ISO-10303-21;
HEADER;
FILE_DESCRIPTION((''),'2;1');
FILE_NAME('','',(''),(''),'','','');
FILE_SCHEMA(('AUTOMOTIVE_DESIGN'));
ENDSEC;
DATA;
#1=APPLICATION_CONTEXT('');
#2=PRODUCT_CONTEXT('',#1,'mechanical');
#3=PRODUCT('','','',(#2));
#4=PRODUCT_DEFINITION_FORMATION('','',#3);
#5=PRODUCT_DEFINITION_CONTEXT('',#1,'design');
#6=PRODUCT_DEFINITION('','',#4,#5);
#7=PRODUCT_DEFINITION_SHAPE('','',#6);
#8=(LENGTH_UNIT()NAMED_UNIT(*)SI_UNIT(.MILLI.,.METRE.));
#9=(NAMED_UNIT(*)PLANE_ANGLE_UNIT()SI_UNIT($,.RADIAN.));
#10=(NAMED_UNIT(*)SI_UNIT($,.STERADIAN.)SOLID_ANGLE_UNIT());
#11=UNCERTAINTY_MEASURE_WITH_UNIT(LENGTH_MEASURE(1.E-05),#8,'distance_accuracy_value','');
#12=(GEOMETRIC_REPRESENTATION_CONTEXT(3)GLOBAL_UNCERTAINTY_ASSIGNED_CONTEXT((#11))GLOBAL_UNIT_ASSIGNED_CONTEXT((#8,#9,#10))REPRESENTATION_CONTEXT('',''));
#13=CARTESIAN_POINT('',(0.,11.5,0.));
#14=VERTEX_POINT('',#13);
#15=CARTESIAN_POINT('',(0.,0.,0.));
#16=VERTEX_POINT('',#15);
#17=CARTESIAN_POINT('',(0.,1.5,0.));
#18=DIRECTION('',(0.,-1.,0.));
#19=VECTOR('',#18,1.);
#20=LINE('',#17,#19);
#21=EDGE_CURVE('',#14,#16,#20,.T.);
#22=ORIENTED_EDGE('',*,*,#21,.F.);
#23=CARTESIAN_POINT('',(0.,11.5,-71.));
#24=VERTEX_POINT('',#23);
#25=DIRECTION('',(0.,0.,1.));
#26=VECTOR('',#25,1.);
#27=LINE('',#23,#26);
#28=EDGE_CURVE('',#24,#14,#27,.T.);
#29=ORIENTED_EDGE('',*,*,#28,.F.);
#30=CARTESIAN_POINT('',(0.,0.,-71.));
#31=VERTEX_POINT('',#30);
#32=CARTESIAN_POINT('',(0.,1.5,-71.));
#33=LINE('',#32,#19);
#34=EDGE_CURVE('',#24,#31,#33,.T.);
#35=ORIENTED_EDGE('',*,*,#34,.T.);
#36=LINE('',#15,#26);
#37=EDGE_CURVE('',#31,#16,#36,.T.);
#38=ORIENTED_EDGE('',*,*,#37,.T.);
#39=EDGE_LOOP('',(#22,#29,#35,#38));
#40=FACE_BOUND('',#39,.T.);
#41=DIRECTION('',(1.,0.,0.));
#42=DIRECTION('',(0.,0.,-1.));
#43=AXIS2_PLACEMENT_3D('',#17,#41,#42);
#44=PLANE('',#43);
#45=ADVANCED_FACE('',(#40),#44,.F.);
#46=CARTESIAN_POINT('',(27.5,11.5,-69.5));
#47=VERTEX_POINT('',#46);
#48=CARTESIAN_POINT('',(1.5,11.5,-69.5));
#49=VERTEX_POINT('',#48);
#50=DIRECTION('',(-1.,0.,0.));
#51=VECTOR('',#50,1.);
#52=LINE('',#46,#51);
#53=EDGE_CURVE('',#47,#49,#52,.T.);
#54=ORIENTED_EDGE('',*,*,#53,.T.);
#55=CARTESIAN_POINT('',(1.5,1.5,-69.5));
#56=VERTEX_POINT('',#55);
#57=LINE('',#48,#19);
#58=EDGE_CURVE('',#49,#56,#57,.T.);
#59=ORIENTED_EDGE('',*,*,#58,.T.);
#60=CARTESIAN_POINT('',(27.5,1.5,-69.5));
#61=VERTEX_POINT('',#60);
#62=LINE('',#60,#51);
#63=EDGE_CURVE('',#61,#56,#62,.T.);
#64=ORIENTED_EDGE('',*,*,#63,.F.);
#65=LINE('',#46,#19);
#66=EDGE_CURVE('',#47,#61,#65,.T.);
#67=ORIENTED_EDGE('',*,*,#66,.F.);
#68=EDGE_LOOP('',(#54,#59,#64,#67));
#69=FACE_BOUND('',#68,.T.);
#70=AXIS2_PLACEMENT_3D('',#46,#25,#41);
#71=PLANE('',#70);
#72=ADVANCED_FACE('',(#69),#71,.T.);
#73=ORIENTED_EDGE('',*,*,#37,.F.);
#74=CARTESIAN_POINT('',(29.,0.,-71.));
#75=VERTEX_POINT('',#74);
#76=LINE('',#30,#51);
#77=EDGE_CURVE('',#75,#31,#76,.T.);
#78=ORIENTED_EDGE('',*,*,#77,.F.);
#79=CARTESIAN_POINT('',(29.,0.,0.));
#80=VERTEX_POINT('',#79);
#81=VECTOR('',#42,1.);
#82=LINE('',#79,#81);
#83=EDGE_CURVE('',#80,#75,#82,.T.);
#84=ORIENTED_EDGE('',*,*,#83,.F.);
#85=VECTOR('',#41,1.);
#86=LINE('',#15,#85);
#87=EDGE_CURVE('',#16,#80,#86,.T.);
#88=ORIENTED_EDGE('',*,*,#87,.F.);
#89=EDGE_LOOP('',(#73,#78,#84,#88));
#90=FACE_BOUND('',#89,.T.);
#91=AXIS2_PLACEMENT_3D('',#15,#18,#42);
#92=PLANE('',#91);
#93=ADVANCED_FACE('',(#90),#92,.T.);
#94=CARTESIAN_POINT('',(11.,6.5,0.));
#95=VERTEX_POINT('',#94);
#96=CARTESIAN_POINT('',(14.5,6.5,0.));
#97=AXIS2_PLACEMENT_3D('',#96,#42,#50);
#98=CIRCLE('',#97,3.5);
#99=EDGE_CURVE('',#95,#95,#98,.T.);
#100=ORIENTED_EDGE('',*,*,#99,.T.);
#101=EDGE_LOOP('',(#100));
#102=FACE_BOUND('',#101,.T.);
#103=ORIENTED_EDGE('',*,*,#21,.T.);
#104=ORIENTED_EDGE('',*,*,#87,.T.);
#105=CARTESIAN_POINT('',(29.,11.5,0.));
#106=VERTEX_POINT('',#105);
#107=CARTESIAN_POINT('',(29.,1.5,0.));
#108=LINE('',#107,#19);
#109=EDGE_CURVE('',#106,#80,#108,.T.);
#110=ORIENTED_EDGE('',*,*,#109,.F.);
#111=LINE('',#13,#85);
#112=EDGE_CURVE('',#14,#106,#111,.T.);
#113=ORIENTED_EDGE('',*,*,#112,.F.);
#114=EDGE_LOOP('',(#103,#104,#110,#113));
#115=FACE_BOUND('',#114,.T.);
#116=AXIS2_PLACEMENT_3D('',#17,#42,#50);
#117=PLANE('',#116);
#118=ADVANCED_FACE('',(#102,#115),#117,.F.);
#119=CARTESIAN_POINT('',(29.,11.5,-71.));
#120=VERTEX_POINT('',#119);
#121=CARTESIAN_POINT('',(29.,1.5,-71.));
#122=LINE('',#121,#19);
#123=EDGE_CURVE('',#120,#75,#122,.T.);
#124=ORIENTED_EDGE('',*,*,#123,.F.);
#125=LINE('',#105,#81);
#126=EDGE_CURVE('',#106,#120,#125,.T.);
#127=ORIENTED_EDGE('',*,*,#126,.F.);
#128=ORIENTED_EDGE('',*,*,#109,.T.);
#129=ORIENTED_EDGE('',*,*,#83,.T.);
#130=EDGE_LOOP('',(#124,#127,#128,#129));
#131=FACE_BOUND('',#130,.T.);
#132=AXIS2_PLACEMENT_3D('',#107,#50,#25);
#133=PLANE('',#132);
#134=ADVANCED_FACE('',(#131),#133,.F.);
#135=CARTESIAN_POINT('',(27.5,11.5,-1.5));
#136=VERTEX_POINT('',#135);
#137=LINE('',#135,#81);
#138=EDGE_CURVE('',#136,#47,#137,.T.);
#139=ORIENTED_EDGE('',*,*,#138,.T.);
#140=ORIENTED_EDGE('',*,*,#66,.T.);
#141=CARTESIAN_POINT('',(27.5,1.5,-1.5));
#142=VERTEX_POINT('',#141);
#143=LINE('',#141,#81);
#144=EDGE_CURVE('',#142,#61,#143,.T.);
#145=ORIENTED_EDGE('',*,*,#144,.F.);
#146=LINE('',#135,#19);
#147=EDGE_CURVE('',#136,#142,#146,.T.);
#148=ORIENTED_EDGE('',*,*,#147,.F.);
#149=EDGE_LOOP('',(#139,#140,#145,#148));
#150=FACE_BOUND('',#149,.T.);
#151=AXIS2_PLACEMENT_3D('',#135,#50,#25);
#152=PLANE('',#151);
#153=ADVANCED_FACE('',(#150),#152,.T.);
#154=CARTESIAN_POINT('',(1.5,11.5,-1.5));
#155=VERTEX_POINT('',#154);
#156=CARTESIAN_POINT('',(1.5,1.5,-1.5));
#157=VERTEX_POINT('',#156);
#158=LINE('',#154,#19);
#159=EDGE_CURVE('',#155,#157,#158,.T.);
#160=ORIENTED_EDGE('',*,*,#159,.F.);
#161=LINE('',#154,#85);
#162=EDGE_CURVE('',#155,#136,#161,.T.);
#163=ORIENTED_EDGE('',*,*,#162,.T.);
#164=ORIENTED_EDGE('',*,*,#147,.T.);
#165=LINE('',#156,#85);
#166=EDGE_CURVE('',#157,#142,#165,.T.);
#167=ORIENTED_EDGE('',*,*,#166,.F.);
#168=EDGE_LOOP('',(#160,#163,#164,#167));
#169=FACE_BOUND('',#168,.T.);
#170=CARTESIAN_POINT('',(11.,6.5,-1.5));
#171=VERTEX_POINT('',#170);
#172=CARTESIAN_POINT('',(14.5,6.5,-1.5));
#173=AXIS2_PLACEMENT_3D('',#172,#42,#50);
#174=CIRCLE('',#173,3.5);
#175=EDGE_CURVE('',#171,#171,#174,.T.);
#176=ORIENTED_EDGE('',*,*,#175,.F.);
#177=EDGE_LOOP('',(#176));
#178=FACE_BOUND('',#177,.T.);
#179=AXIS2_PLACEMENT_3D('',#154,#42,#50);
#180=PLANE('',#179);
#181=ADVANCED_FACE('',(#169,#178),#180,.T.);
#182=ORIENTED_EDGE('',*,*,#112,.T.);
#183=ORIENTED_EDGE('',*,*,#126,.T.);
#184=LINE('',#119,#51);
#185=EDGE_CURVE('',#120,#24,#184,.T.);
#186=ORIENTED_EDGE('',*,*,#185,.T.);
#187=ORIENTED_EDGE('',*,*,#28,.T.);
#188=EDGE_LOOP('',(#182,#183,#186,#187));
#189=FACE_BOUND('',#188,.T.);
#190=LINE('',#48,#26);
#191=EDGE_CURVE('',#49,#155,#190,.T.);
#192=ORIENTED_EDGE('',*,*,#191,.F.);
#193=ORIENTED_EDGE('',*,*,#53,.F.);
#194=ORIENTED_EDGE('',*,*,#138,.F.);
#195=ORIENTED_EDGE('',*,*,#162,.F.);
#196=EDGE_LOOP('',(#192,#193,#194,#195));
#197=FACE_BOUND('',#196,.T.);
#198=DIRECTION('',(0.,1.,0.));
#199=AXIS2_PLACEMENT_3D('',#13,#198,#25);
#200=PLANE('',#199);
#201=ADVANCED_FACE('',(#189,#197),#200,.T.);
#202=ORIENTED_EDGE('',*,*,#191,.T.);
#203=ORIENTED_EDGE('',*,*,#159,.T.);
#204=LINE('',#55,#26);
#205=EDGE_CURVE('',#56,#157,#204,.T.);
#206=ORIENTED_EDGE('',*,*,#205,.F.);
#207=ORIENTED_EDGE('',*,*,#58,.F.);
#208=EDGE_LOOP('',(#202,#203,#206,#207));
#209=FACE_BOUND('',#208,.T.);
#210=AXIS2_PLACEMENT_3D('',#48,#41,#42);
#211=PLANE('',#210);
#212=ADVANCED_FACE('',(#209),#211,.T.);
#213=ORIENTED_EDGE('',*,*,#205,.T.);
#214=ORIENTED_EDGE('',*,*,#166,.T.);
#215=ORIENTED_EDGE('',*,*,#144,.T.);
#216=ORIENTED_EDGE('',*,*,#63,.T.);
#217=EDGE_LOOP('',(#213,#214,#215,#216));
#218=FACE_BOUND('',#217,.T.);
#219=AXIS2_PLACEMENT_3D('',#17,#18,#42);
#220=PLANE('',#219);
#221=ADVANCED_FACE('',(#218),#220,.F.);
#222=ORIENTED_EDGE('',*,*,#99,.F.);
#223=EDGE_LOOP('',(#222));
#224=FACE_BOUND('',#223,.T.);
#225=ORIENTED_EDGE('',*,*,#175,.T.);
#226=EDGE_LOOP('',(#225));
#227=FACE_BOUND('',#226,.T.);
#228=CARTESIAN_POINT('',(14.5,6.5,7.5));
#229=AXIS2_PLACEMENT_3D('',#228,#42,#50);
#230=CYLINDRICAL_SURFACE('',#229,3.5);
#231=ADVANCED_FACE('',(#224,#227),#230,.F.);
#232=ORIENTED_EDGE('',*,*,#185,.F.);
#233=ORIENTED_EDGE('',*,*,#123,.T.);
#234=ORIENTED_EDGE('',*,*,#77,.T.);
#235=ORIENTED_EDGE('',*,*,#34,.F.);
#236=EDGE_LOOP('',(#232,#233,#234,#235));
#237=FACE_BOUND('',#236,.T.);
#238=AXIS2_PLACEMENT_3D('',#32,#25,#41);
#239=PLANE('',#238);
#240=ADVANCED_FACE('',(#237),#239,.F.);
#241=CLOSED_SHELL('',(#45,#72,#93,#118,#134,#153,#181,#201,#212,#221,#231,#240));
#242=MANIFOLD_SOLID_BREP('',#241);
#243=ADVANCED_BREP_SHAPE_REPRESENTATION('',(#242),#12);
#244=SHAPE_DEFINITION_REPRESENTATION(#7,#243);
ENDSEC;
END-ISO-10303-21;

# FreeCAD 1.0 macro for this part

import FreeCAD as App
import Part
import Sketcher

V = App.Vector

doc = App.newDocument("Part")
params = doc.addObject("Spreadsheet::Sheet", "Params")
for row, (alias, value) in enumerate([
    ("sketch1_width", "29 mm"),
    ("sketch1_height", "71 mm"),
    ("pad1_length", "1.5 mm"),
    ("sketch2_width", "29 mm"),
    ("sketch2_width2", "26 mm"),
    ("sketch2_height", "71 mm"),
    ("sketch2_height2", "68 mm"),
    ("pad2_length", "10 mm"),
    ("sketch3_diameter", "7 mm"),
    ("pocket1_length", "9 mm"),
], start=1):
    params.set(f"A{row}", alias)
    params.set(f"B{row}", "=" + value)
    params.setAlias(f"B{row}", alias)

body = doc.addObject("PartDesign::Body", "Body")

# Sketch on XZ plane
sketch1 = doc.addObject("Sketcher::SketchObject", "Sketch")
body.addObject(sketch1)
sketch1.AttachmentSupport = (doc.XZ_Plane, [""])
sketch1.MapMode = "FlatFace"
sketch1.addGeometry(Part.LineSegment(V(0, -71, 0), V(0, 0, 0)), False)
sketch1.addGeometry(Part.LineSegment(V(0, 0, 0), V(29, 0, 0)), False)
sketch1.addGeometry(Part.LineSegment(V(29, 0, 0), V(29, -71, 0)), False)
sketch1.addGeometry(Part.LineSegment(V(29, -71, 0), V(0, -71, 0)), False)
sketch1.addConstraint(Sketcher.Constraint("Coincident", 0, 2, 1, 1))
sketch1.addConstraint(Sketcher.Constraint("Coincident", 1, 2, 2, 1))
sketch1.addConstraint(Sketcher.Constraint("Coincident", 2, 2, 3, 1))
sketch1.addConstraint(Sketcher.Constraint("Coincident", 3, 2, 0, 1))
sketch1.addConstraint(Sketcher.Constraint("Vertical", 0))
sketch1.addConstraint(Sketcher.Constraint("Horizontal", 1))
sketch1.addConstraint(Sketcher.Constraint("Vertical", 2))
sketch1.addConstraint(Sketcher.Constraint("Horizontal", 3))
sketch1.addConstraint(Sketcher.Constraint("Coincident", 0, 2, -1, 1))
sketch1.addConstraint(Sketcher.Constraint("DistanceX", 1, 1, 1, 2, 29.0))
sketch1.addConstraint(Sketcher.Constraint("DistanceY", 0, 1, 0, 2, 71.0))
sketch1.setExpression("Constraints[9]", "Params.sketch1_width")
sketch1.setExpression("Constraints[10]", "Params.sketch1_height")
pad1 = doc.addObject("PartDesign::Pad", "Pad")
body.addObject(pad1)
pad1.Profile = sketch1
pad1.setExpression("Length", "Params.pad1_length")
pad1.Reversed = True

# Sketch on XZ plane
sketch2 = doc.addObject("Sketcher::SketchObject", "Sketch001")
body.addObject(sketch2)
sketch2.AttachmentSupport = (doc.XZ_Plane, [""])
sketch2.MapMode = "FlatFace"
sketch2.AttachmentOffset = App.Placement(V(0, 0, -1.5), App.Rotation())
sketch2.addGeometry(Part.LineSegment(V(0, -71, 0), V(0, 0, 0)), False)
sketch2.addGeometry(Part.LineSegment(V(0, 0, 0), V(29, 0, 0)), False)
sketch2.addGeometry(Part.LineSegment(V(29, 0, 0), V(29, -71, 0)), False)
sketch2.addGeometry(Part.LineSegment(V(29, -71, 0), V(0, -71, 0)), False)
sketch2.addGeometry(Part.LineSegment(V(27.5, -1.5, 0), V(1.5, -1.5, 0)), False)
sketch2.addGeometry(Part.LineSegment(V(1.5, -1.5, 0), V(1.5, -69.5, 0)), False)
sketch2.addGeometry(Part.LineSegment(V(1.5, -69.5, 0), V(27.5, -69.5, 0)), False)
sketch2.addGeometry(Part.LineSegment(V(27.5, -69.5, 0), V(27.5, -1.5, 0)), False)
sketch2.addConstraint(Sketcher.Constraint("Coincident", 0, 2, 1, 1))
sketch2.addConstraint(Sketcher.Constraint("Coincident", 1, 2, 2, 1))
sketch2.addConstraint(Sketcher.Constraint("Coincident", 2, 2, 3, 1))
sketch2.addConstraint(Sketcher.Constraint("Coincident", 3, 2, 0, 1))
sketch2.addConstraint(Sketcher.Constraint("Coincident", 4, 2, 5, 1))
sketch2.addConstraint(Sketcher.Constraint("Coincident", 5, 2, 6, 1))
sketch2.addConstraint(Sketcher.Constraint("Coincident", 6, 2, 7, 1))
sketch2.addConstraint(Sketcher.Constraint("Coincident", 7, 2, 4, 1))
sketch2.addConstraint(Sketcher.Constraint("Vertical", 0))
sketch2.addConstraint(Sketcher.Constraint("Horizontal", 1))
sketch2.addConstraint(Sketcher.Constraint("Vertical", 2))
sketch2.addConstraint(Sketcher.Constraint("Horizontal", 3))
sketch2.addConstraint(Sketcher.Constraint("Horizontal", 4))
sketch2.addConstraint(Sketcher.Constraint("Vertical", 5))
sketch2.addConstraint(Sketcher.Constraint("Horizontal", 6))
sketch2.addConstraint(Sketcher.Constraint("Vertical", 7))
sketch2.addConstraint(Sketcher.Constraint("Coincident", 0, 2, -1, 1))
sketch2.addConstraint(Sketcher.Constraint("DistanceX", 1, 1, 1, 2, 29.0))
sketch2.addConstraint(Sketcher.Constraint("DistanceX", 4, 2, 4, 1, 26.0))
sketch2.addConstraint(Sketcher.Constraint("DistanceY", 0, 1, 0, 2, 71.0))
sketch2.addConstraint(Sketcher.Constraint("DistanceY", 5, 2, 5, 1, 68.0))
sketch2.addConstraint(Sketcher.Constraint("DistanceX", -1, 1, 4, 2, 1.5))
sketch2.addConstraint(Sketcher.Constraint("DistanceY", 4, 2, -1, 1, 1.5))
sketch2.setExpression("Constraints[17]", "Params.sketch2_width")
sketch2.setExpression("Constraints[18]", "Params.sketch2_width2")
sketch2.setExpression("Constraints[19]", "Params.sketch2_height")
sketch2.setExpression("Constraints[20]", "Params.sketch2_height2")
pad2 = doc.addObject("PartDesign::Pad", "Pad001")
body.addObject(pad2)
pad2.Profile = sketch2
pad2.setExpression("Length", "Params.pad2_length")
pad2.Reversed = True

# Sketch on XY plane
sketch3 = doc.addObject("Sketcher::SketchObject", "Sketch002")
body.addObject(sketch3)
sketch3.AttachmentSupport = (doc.XY_Plane, [""])
sketch3.MapMode = "FlatFace"
sketch3.AttachmentOffset = App.Placement(V(0, 0, -1.5), App.Rotation())
sketch3.addGeometry(Part.Circle(V(14.5, 6.5, 0), V(0, 0, 1), 3.5), False)
sketch3.addConstraint(Sketcher.Constraint("Diameter", 0, 7.0))
sketch3.addConstraint(Sketcher.Constraint("DistanceX", -1, 1, 0, 3, 14.5))
sketch3.addConstraint(Sketcher.Constraint("DistanceY", -1, 1, 0, 3, 6.5))
sketch3.setExpression("Constraints[0]", "Params.sketch3_diameter")
pocket1 = doc.addObject("PartDesign::Pocket", "Pocket")
body.addObject(pocket1)
pocket1.Profile = sketch3
pocket1.setExpression("Length", "Params.pocket1_length")
pocket1.Reversed = True

doc.recompute()
